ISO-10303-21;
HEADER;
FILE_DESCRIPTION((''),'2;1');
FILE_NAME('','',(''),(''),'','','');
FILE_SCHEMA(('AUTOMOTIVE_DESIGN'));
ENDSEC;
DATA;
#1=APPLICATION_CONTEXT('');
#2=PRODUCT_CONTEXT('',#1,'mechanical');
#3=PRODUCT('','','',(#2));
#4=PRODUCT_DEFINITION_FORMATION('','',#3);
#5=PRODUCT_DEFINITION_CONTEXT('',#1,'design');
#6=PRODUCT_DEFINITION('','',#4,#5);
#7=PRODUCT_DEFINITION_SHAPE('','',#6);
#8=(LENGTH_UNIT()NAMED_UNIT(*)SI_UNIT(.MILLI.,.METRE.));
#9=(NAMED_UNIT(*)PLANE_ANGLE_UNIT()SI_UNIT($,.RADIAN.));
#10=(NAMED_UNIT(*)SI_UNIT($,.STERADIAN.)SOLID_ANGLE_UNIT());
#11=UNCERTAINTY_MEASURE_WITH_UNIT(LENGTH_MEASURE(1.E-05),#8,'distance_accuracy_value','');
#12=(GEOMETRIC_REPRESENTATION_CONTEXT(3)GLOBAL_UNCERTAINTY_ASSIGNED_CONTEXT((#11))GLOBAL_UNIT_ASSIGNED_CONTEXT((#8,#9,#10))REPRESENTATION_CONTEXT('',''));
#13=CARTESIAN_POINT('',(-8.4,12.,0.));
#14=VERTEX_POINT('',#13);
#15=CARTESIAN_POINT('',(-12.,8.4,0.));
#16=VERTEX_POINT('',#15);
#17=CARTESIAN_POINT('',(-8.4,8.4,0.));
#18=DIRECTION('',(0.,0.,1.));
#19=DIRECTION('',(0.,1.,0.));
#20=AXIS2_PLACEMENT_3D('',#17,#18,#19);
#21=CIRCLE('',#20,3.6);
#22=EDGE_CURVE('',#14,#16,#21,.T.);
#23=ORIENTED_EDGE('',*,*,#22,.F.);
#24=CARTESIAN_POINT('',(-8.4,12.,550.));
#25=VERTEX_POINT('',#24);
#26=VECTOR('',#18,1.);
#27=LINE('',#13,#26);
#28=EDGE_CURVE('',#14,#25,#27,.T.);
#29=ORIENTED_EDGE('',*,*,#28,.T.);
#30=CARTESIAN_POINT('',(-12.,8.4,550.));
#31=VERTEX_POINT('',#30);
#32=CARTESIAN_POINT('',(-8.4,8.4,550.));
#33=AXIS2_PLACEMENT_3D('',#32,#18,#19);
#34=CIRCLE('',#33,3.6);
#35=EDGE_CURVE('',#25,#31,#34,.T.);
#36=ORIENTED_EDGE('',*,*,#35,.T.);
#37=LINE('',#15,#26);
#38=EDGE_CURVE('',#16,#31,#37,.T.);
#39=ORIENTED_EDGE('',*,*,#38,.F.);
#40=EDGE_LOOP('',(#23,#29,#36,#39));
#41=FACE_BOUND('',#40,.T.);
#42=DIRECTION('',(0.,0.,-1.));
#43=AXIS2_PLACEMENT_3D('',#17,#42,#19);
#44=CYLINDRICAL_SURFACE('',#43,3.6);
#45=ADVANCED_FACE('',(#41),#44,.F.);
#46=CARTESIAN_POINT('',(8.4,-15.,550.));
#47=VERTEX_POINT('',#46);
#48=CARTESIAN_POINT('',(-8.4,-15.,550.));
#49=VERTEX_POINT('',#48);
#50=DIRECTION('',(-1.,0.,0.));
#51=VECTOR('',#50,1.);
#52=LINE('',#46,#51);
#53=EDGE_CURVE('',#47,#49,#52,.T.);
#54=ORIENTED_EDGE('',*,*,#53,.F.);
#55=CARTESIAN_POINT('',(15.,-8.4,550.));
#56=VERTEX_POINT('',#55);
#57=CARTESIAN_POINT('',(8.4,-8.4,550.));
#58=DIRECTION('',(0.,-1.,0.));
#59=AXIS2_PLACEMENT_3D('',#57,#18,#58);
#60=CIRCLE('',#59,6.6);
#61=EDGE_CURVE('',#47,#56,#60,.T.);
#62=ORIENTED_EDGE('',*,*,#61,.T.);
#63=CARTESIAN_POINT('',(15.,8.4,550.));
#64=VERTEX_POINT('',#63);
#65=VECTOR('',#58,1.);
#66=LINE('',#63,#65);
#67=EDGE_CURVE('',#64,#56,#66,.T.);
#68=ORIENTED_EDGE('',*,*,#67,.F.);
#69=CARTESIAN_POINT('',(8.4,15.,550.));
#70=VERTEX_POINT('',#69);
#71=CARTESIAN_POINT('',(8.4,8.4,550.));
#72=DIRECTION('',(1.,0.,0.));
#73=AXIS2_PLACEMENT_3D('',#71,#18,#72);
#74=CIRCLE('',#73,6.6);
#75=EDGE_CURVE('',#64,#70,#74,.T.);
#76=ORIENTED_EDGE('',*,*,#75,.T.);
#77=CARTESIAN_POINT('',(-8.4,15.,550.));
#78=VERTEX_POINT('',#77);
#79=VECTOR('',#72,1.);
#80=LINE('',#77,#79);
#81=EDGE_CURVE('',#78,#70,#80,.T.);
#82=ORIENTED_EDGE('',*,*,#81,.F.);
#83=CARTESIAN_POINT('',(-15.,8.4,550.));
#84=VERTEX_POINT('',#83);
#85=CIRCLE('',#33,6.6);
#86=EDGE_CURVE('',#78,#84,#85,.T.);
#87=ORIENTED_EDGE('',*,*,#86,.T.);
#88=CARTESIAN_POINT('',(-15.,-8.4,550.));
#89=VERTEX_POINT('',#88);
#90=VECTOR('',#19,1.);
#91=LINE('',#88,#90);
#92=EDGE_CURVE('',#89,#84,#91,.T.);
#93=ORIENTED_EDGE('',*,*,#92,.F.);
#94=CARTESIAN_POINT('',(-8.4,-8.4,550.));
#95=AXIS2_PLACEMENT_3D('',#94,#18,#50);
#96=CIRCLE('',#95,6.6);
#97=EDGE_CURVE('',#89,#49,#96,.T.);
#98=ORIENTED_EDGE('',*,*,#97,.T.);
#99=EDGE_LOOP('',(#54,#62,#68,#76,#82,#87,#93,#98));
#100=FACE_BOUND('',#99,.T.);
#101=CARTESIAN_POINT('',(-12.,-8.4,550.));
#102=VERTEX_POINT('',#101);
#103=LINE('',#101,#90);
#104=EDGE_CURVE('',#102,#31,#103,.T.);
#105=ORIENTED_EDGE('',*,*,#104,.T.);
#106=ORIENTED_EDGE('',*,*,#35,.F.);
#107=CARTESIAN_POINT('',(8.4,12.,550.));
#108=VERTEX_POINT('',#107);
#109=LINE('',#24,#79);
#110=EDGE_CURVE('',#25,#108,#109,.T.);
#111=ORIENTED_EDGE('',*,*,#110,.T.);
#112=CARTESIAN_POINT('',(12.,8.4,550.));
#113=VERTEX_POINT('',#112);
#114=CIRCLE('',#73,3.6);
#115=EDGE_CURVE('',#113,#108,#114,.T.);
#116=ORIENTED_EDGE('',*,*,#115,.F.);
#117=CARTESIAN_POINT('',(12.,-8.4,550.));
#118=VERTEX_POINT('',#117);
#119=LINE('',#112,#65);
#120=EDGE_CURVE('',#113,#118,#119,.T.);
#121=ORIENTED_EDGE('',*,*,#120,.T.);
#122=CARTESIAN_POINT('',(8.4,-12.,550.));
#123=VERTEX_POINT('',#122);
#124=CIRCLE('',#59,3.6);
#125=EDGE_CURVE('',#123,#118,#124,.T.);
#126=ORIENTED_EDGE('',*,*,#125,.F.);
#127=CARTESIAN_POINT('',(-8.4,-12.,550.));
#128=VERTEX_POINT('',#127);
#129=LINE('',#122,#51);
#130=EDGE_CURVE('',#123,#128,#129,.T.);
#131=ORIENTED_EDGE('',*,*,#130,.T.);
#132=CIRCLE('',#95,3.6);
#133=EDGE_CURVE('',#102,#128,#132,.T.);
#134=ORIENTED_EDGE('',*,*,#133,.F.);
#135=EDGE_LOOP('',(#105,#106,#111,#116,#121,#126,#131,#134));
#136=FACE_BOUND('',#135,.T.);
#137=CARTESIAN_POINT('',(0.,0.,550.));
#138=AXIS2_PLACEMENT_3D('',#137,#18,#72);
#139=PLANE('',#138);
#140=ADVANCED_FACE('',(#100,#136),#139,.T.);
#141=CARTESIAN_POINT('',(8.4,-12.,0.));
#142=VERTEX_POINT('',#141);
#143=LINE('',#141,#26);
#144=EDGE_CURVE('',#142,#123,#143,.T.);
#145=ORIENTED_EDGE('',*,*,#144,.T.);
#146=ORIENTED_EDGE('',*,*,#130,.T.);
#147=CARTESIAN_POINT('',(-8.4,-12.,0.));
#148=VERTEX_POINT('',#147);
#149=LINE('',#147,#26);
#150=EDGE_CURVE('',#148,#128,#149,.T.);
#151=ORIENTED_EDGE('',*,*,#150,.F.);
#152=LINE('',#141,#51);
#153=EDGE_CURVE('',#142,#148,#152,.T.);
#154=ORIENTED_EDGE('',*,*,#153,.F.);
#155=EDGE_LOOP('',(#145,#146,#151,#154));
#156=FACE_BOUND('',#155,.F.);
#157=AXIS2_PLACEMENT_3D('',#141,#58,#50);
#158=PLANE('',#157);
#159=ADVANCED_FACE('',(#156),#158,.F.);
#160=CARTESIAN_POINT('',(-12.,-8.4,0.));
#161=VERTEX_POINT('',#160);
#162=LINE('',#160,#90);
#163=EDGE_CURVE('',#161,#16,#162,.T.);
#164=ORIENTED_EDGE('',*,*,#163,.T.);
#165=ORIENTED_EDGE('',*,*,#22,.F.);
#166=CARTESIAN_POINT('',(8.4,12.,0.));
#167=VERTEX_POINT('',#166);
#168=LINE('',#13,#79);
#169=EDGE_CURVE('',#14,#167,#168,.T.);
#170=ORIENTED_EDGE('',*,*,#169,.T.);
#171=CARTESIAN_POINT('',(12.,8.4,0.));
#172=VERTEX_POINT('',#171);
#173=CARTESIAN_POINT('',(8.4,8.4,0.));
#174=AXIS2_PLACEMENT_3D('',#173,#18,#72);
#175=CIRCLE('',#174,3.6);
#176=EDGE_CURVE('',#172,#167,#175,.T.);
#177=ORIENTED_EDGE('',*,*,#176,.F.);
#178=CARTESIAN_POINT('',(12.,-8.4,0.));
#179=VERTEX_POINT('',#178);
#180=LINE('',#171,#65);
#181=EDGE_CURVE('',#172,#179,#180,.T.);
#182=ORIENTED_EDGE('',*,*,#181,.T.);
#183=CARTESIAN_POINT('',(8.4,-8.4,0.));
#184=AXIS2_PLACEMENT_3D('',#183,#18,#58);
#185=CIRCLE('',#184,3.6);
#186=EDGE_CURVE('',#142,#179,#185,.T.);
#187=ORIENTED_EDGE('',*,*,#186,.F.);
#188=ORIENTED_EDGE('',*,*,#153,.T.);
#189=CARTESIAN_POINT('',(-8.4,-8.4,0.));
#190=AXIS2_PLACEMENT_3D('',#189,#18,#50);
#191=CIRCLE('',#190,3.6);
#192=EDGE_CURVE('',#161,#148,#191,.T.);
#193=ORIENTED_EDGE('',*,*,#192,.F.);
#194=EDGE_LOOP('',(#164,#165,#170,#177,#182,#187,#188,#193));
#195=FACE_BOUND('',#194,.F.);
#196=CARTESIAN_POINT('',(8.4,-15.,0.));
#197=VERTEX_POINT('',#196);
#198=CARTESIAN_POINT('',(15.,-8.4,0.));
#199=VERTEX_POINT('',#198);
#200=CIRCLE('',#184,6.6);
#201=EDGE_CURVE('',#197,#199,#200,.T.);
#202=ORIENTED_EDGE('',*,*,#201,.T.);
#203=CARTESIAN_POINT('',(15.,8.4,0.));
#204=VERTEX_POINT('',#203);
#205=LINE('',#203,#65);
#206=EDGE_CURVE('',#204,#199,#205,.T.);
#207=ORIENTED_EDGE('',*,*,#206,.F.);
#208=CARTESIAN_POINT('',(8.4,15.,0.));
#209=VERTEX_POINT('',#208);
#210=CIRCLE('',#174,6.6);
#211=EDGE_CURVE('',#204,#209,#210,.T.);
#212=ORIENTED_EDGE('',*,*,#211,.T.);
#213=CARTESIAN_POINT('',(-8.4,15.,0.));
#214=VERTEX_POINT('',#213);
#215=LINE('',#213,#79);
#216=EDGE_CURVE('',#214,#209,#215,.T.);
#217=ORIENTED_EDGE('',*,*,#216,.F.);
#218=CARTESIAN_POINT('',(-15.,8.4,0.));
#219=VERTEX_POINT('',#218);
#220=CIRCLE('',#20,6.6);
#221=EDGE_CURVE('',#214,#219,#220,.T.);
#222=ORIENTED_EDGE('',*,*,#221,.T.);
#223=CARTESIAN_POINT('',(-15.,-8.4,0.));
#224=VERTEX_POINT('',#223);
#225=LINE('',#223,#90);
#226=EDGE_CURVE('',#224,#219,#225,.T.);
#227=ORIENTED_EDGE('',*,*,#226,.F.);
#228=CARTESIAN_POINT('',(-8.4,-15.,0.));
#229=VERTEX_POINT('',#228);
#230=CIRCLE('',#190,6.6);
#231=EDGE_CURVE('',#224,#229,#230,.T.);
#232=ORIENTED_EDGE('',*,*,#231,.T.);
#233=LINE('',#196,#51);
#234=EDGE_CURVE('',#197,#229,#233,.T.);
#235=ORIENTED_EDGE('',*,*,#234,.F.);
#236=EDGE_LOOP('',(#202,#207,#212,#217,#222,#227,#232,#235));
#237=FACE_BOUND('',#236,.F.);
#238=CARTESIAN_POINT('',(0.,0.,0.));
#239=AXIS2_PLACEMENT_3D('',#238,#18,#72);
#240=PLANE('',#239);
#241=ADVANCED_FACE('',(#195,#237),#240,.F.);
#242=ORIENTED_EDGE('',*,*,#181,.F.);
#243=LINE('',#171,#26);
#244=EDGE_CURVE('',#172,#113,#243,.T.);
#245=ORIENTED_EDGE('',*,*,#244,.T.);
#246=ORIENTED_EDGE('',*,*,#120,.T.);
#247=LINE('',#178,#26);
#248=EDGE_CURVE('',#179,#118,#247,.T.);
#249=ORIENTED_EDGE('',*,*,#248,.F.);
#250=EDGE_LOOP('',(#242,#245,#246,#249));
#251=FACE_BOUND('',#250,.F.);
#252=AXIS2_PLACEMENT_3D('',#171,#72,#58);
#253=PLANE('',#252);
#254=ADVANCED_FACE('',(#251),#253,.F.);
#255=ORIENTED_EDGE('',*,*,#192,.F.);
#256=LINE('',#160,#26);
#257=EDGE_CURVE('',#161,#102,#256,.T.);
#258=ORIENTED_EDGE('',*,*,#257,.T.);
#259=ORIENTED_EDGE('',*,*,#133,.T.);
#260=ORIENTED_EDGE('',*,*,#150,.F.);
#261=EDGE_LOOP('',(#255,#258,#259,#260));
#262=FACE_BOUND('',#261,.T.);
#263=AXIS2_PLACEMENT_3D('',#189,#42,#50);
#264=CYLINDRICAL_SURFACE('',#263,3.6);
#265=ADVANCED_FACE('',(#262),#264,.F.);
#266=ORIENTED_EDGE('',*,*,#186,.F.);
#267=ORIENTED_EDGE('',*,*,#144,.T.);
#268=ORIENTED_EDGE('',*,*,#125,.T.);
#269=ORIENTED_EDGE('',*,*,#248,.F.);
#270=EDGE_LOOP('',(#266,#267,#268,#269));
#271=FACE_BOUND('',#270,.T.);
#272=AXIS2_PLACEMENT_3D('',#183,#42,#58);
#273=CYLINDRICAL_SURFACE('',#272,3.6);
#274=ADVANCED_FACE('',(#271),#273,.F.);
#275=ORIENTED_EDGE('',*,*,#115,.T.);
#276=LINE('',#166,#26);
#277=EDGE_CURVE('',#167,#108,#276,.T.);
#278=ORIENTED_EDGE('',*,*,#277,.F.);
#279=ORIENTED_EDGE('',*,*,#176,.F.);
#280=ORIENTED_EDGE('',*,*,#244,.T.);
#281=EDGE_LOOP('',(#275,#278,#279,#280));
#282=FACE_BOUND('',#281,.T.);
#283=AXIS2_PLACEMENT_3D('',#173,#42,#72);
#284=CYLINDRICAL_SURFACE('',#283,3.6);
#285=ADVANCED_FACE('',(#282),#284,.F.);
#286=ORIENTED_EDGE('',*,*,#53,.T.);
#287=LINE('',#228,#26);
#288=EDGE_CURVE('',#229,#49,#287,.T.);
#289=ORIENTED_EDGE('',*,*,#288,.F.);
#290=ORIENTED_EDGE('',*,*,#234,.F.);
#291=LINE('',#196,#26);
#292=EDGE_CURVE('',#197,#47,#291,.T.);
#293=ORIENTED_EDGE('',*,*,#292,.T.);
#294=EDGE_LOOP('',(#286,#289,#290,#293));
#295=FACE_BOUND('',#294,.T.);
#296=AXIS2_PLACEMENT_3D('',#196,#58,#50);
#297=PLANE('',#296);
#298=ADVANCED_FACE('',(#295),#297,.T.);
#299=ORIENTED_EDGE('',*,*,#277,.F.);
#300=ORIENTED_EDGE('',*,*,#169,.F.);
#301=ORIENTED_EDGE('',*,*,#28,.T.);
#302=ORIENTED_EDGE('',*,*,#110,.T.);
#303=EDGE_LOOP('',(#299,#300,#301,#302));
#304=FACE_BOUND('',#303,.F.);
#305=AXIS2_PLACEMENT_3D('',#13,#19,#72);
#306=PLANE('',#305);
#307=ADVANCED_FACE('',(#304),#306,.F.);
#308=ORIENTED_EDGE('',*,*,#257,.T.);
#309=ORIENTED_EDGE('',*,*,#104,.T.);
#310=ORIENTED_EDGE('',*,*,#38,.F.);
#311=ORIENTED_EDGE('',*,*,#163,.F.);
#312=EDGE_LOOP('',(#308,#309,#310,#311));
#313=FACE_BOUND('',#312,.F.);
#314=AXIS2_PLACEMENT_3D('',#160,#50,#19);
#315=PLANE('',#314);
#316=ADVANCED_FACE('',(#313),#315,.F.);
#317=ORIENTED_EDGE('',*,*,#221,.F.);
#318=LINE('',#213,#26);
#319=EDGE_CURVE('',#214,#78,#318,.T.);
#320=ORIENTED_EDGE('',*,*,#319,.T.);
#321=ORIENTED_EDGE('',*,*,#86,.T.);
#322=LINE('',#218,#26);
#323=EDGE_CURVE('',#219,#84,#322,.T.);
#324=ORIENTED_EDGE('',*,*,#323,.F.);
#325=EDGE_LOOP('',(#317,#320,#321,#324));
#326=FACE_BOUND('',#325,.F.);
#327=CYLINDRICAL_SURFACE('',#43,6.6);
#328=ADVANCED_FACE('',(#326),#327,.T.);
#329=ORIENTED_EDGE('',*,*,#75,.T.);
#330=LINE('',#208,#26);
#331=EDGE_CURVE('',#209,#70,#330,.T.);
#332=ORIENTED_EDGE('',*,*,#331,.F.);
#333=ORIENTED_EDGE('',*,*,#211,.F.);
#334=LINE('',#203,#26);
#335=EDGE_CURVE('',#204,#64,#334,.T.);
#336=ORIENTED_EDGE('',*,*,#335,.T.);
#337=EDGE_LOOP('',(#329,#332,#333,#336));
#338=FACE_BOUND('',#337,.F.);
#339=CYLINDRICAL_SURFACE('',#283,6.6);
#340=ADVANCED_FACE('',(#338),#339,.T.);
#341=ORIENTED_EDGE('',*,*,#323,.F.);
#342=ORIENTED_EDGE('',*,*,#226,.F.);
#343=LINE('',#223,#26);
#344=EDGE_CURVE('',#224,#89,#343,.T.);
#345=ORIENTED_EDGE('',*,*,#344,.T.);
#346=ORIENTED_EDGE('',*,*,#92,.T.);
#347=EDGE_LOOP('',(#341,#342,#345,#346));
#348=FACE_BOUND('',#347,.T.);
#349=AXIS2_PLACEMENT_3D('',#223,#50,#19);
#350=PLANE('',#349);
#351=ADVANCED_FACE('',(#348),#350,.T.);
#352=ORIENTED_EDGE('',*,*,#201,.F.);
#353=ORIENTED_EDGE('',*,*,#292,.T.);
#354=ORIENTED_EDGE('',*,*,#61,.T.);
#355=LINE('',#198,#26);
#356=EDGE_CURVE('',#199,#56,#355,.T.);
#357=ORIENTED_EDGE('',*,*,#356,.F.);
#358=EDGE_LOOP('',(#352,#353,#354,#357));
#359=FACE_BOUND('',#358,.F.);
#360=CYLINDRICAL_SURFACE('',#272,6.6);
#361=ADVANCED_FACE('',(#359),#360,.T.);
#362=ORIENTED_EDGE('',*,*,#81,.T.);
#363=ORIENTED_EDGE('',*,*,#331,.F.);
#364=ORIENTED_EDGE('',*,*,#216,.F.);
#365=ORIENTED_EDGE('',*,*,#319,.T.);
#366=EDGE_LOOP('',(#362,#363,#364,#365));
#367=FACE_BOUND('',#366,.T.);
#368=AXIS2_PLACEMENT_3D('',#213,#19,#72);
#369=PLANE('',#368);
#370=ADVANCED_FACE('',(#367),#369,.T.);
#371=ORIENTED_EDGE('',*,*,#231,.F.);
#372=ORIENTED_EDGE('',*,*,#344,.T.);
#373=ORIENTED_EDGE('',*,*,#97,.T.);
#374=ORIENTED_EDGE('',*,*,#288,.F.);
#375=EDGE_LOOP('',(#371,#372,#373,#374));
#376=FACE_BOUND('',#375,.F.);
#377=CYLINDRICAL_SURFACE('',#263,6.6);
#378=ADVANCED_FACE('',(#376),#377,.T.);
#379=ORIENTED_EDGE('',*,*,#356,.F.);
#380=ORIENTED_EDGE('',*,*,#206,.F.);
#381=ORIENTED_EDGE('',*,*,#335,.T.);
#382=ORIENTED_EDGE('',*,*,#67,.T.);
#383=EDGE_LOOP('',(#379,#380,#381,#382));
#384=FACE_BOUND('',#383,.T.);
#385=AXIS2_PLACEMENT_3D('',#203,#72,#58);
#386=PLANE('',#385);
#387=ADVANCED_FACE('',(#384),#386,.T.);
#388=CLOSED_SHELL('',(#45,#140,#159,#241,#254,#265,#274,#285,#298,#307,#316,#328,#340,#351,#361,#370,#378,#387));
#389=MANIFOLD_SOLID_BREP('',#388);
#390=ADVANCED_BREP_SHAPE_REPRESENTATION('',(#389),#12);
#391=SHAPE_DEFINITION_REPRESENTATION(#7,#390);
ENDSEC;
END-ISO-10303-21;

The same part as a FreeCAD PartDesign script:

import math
import FreeCAD as App
import Part
import Sketcher
from FreeCAD import Vector
Q = App.Units.Quantity

doc = App.newDocument("Part")
params = doc.addObject("Spreadsheet::Sheet", "Params")
for row, (alias, value) in enumerate([
    ("sketch1_radius", "6.6 mm"),
    ("pad1_length", "550 mm"),
], start=1):
    params.set(f"A{row}", alias)
    params.set(f"B{row}", "=" + value)
    params.setAlias(f"B{row}", alias)

body = doc.addObject("PartDesign::Body", "Body")

# Sketch on XY plane
sketch1 = body.newObject("Sketcher::SketchObject", "Sketch")
sketch1.AttachmentSupport = (doc.getObject("XY_Plane"), [""])
sketch1.MapMode = "FlatFace"
sketch1.addGeometry([
    Part.LineSegment(Vector(-15, 8.4, 0), Vector(-15, -8.4, 0)),  # 0
    Part.ArcOfCircle(Part.Circle(Vector(-8.4, -8.4, 0), Vector(0, 0, 1), 6.6), math.radians(180), math.radians(270)),  # 1
    Part.LineSegment(Vector(-8.4, -15, 0), Vector(8.4, -15, 0)),  # 2
    Part.ArcOfCircle(Part.Circle(Vector(8.4, -8.4, 0), Vector(0, 0, 1), 6.6), math.radians(-90), math.radians(0)),  # 3
    Part.LineSegment(Vector(15, -8.4, 0), Vector(15, 8.4, 0)),  # 4
    Part.ArcOfCircle(Part.Circle(Vector(8.4, 8.4, 0), Vector(0, 0, 1), 6.6), math.radians(0), math.radians(90)),  # 5
    Part.LineSegment(Vector(8.4, 15, 0), Vector(-8.4, 15, 0)),  # 6
    Part.ArcOfCircle(Part.Circle(Vector(-8.4, 8.4, 0), Vector(0, 0, 1), 6.6), math.radians(90), math.radians(180)),  # 7
    Part.ArcOfCircle(Part.Circle(Vector(-8.4, 8.4, 0), Vector(0, 0, 1), 3.6), math.radians(90), math.radians(180)),  # 8
    Part.LineSegment(Vector(-8.4, 12, 0), Vector(8.4, 12, 0)),  # 9
    Part.ArcOfCircle(Part.Circle(Vector(8.4, 8.4, 0), Vector(0, 0, 1), 3.6), math.radians(0), math.radians(90)),  # 10
    Part.LineSegment(Vector(12, 8.4, 0), Vector(12, -8.4, 0)),  # 11
    Part.ArcOfCircle(Part.Circle(Vector(8.4, -8.4, 0), Vector(0, 0, 1), 3.6), math.radians(-90), math.radians(0)),  # 12
    Part.LineSegment(Vector(8.4, -12, 0), Vector(-8.4, -12, 0)),  # 13
    Part.ArcOfCircle(Part.Circle(Vector(-8.4, -8.4, 0), Vector(0, 0, 1), 3.6), math.radians(180), math.radians(270)),  # 14
    Part.LineSegment(Vector(-12, -8.4, 0), Vector(-12, 8.4, 0)),  # 15
], False)
sketch1.addConstraint([
    Sketcher.Constraint("Tangent", 0, 2, 1, 1),
    Sketcher.Constraint("Tangent", 1, 2, 2, 1),
    Sketcher.Constraint("Tangent", 2, 2, 3, 1),
    Sketcher.Constraint("Tangent", 3, 2, 4, 1),
    Sketcher.Constraint("Tangent", 4, 2, 5, 1),
    Sketcher.Constraint("Tangent", 5, 2, 6, 1),
    Sketcher.Constraint("Tangent", 6, 2, 7, 1),
    Sketcher.Constraint("Tangent", 7, 2, 0, 1),
    Sketcher.Constraint("Tangent", 8, 1, 9, 1),
    Sketcher.Constraint("Tangent", 9, 2, 10, 2),
    Sketcher.Constraint("Tangent", 10, 1, 11, 1),
    Sketcher.Constraint("Tangent", 11, 2, 12, 2),
    Sketcher.Constraint("Tangent", 12, 1, 13, 1),
    Sketcher.Constraint("Tangent", 13, 2, 14, 2),
    Sketcher.Constraint("Tangent", 14, 1, 15, 1),
    Sketcher.Constraint("Tangent", 15, 2, 8, 2),
    Sketcher.Constraint("Vertical", 0),
    Sketcher.Constraint("Horizontal", 2),
    Sketcher.Constraint("Vertical", 4),
    Sketcher.Constraint("Horizontal", 6),
    Sketcher.Constraint("Horizontal", 9),
    Sketcher.Constraint("Vertical", 11),
    Sketcher.Constraint("Horizontal", 13),
    Sketcher.Constraint("Vertical", 15),
    Sketcher.Constraint("Coincident", 8, 3, 7, 3),
    Sketcher.Constraint("Coincident", 10, 3, 5, 3),
    Sketcher.Constraint("Coincident", 12, 3, 3, 3),
    Sketcher.Constraint("Equal", 1, 3),
    Sketcher.Constraint("Equal", 3, 5),
    Sketcher.Constraint("Equal", 5, 7),
    Sketcher.Constraint("Equal", 12, 14),
    Sketcher.Constraint("Symmetric", 1, 3, 5, 3, -1, 1),
    Sketcher.Constraint("Equal", 13, 0),
    Sketcher.Constraint("Radius", 1, Q("6.6 mm")),
    Sketcher.Constraint("DistanceX", 0, 2, -1, 1, Q("15 mm")),
    Sketcher.Constraint("DistanceY", 8, 1, 6, 2, Q("3 mm")),
])
sketch1.setExpression("Constraints[33]", "Params.sketch1_radius")
pad1 = body.newObject("PartDesign::Pad", "Pad")
pad1.Profile = sketch1
pad1.setExpression("Length", "Params.pad1_length")

doc.recompute()
